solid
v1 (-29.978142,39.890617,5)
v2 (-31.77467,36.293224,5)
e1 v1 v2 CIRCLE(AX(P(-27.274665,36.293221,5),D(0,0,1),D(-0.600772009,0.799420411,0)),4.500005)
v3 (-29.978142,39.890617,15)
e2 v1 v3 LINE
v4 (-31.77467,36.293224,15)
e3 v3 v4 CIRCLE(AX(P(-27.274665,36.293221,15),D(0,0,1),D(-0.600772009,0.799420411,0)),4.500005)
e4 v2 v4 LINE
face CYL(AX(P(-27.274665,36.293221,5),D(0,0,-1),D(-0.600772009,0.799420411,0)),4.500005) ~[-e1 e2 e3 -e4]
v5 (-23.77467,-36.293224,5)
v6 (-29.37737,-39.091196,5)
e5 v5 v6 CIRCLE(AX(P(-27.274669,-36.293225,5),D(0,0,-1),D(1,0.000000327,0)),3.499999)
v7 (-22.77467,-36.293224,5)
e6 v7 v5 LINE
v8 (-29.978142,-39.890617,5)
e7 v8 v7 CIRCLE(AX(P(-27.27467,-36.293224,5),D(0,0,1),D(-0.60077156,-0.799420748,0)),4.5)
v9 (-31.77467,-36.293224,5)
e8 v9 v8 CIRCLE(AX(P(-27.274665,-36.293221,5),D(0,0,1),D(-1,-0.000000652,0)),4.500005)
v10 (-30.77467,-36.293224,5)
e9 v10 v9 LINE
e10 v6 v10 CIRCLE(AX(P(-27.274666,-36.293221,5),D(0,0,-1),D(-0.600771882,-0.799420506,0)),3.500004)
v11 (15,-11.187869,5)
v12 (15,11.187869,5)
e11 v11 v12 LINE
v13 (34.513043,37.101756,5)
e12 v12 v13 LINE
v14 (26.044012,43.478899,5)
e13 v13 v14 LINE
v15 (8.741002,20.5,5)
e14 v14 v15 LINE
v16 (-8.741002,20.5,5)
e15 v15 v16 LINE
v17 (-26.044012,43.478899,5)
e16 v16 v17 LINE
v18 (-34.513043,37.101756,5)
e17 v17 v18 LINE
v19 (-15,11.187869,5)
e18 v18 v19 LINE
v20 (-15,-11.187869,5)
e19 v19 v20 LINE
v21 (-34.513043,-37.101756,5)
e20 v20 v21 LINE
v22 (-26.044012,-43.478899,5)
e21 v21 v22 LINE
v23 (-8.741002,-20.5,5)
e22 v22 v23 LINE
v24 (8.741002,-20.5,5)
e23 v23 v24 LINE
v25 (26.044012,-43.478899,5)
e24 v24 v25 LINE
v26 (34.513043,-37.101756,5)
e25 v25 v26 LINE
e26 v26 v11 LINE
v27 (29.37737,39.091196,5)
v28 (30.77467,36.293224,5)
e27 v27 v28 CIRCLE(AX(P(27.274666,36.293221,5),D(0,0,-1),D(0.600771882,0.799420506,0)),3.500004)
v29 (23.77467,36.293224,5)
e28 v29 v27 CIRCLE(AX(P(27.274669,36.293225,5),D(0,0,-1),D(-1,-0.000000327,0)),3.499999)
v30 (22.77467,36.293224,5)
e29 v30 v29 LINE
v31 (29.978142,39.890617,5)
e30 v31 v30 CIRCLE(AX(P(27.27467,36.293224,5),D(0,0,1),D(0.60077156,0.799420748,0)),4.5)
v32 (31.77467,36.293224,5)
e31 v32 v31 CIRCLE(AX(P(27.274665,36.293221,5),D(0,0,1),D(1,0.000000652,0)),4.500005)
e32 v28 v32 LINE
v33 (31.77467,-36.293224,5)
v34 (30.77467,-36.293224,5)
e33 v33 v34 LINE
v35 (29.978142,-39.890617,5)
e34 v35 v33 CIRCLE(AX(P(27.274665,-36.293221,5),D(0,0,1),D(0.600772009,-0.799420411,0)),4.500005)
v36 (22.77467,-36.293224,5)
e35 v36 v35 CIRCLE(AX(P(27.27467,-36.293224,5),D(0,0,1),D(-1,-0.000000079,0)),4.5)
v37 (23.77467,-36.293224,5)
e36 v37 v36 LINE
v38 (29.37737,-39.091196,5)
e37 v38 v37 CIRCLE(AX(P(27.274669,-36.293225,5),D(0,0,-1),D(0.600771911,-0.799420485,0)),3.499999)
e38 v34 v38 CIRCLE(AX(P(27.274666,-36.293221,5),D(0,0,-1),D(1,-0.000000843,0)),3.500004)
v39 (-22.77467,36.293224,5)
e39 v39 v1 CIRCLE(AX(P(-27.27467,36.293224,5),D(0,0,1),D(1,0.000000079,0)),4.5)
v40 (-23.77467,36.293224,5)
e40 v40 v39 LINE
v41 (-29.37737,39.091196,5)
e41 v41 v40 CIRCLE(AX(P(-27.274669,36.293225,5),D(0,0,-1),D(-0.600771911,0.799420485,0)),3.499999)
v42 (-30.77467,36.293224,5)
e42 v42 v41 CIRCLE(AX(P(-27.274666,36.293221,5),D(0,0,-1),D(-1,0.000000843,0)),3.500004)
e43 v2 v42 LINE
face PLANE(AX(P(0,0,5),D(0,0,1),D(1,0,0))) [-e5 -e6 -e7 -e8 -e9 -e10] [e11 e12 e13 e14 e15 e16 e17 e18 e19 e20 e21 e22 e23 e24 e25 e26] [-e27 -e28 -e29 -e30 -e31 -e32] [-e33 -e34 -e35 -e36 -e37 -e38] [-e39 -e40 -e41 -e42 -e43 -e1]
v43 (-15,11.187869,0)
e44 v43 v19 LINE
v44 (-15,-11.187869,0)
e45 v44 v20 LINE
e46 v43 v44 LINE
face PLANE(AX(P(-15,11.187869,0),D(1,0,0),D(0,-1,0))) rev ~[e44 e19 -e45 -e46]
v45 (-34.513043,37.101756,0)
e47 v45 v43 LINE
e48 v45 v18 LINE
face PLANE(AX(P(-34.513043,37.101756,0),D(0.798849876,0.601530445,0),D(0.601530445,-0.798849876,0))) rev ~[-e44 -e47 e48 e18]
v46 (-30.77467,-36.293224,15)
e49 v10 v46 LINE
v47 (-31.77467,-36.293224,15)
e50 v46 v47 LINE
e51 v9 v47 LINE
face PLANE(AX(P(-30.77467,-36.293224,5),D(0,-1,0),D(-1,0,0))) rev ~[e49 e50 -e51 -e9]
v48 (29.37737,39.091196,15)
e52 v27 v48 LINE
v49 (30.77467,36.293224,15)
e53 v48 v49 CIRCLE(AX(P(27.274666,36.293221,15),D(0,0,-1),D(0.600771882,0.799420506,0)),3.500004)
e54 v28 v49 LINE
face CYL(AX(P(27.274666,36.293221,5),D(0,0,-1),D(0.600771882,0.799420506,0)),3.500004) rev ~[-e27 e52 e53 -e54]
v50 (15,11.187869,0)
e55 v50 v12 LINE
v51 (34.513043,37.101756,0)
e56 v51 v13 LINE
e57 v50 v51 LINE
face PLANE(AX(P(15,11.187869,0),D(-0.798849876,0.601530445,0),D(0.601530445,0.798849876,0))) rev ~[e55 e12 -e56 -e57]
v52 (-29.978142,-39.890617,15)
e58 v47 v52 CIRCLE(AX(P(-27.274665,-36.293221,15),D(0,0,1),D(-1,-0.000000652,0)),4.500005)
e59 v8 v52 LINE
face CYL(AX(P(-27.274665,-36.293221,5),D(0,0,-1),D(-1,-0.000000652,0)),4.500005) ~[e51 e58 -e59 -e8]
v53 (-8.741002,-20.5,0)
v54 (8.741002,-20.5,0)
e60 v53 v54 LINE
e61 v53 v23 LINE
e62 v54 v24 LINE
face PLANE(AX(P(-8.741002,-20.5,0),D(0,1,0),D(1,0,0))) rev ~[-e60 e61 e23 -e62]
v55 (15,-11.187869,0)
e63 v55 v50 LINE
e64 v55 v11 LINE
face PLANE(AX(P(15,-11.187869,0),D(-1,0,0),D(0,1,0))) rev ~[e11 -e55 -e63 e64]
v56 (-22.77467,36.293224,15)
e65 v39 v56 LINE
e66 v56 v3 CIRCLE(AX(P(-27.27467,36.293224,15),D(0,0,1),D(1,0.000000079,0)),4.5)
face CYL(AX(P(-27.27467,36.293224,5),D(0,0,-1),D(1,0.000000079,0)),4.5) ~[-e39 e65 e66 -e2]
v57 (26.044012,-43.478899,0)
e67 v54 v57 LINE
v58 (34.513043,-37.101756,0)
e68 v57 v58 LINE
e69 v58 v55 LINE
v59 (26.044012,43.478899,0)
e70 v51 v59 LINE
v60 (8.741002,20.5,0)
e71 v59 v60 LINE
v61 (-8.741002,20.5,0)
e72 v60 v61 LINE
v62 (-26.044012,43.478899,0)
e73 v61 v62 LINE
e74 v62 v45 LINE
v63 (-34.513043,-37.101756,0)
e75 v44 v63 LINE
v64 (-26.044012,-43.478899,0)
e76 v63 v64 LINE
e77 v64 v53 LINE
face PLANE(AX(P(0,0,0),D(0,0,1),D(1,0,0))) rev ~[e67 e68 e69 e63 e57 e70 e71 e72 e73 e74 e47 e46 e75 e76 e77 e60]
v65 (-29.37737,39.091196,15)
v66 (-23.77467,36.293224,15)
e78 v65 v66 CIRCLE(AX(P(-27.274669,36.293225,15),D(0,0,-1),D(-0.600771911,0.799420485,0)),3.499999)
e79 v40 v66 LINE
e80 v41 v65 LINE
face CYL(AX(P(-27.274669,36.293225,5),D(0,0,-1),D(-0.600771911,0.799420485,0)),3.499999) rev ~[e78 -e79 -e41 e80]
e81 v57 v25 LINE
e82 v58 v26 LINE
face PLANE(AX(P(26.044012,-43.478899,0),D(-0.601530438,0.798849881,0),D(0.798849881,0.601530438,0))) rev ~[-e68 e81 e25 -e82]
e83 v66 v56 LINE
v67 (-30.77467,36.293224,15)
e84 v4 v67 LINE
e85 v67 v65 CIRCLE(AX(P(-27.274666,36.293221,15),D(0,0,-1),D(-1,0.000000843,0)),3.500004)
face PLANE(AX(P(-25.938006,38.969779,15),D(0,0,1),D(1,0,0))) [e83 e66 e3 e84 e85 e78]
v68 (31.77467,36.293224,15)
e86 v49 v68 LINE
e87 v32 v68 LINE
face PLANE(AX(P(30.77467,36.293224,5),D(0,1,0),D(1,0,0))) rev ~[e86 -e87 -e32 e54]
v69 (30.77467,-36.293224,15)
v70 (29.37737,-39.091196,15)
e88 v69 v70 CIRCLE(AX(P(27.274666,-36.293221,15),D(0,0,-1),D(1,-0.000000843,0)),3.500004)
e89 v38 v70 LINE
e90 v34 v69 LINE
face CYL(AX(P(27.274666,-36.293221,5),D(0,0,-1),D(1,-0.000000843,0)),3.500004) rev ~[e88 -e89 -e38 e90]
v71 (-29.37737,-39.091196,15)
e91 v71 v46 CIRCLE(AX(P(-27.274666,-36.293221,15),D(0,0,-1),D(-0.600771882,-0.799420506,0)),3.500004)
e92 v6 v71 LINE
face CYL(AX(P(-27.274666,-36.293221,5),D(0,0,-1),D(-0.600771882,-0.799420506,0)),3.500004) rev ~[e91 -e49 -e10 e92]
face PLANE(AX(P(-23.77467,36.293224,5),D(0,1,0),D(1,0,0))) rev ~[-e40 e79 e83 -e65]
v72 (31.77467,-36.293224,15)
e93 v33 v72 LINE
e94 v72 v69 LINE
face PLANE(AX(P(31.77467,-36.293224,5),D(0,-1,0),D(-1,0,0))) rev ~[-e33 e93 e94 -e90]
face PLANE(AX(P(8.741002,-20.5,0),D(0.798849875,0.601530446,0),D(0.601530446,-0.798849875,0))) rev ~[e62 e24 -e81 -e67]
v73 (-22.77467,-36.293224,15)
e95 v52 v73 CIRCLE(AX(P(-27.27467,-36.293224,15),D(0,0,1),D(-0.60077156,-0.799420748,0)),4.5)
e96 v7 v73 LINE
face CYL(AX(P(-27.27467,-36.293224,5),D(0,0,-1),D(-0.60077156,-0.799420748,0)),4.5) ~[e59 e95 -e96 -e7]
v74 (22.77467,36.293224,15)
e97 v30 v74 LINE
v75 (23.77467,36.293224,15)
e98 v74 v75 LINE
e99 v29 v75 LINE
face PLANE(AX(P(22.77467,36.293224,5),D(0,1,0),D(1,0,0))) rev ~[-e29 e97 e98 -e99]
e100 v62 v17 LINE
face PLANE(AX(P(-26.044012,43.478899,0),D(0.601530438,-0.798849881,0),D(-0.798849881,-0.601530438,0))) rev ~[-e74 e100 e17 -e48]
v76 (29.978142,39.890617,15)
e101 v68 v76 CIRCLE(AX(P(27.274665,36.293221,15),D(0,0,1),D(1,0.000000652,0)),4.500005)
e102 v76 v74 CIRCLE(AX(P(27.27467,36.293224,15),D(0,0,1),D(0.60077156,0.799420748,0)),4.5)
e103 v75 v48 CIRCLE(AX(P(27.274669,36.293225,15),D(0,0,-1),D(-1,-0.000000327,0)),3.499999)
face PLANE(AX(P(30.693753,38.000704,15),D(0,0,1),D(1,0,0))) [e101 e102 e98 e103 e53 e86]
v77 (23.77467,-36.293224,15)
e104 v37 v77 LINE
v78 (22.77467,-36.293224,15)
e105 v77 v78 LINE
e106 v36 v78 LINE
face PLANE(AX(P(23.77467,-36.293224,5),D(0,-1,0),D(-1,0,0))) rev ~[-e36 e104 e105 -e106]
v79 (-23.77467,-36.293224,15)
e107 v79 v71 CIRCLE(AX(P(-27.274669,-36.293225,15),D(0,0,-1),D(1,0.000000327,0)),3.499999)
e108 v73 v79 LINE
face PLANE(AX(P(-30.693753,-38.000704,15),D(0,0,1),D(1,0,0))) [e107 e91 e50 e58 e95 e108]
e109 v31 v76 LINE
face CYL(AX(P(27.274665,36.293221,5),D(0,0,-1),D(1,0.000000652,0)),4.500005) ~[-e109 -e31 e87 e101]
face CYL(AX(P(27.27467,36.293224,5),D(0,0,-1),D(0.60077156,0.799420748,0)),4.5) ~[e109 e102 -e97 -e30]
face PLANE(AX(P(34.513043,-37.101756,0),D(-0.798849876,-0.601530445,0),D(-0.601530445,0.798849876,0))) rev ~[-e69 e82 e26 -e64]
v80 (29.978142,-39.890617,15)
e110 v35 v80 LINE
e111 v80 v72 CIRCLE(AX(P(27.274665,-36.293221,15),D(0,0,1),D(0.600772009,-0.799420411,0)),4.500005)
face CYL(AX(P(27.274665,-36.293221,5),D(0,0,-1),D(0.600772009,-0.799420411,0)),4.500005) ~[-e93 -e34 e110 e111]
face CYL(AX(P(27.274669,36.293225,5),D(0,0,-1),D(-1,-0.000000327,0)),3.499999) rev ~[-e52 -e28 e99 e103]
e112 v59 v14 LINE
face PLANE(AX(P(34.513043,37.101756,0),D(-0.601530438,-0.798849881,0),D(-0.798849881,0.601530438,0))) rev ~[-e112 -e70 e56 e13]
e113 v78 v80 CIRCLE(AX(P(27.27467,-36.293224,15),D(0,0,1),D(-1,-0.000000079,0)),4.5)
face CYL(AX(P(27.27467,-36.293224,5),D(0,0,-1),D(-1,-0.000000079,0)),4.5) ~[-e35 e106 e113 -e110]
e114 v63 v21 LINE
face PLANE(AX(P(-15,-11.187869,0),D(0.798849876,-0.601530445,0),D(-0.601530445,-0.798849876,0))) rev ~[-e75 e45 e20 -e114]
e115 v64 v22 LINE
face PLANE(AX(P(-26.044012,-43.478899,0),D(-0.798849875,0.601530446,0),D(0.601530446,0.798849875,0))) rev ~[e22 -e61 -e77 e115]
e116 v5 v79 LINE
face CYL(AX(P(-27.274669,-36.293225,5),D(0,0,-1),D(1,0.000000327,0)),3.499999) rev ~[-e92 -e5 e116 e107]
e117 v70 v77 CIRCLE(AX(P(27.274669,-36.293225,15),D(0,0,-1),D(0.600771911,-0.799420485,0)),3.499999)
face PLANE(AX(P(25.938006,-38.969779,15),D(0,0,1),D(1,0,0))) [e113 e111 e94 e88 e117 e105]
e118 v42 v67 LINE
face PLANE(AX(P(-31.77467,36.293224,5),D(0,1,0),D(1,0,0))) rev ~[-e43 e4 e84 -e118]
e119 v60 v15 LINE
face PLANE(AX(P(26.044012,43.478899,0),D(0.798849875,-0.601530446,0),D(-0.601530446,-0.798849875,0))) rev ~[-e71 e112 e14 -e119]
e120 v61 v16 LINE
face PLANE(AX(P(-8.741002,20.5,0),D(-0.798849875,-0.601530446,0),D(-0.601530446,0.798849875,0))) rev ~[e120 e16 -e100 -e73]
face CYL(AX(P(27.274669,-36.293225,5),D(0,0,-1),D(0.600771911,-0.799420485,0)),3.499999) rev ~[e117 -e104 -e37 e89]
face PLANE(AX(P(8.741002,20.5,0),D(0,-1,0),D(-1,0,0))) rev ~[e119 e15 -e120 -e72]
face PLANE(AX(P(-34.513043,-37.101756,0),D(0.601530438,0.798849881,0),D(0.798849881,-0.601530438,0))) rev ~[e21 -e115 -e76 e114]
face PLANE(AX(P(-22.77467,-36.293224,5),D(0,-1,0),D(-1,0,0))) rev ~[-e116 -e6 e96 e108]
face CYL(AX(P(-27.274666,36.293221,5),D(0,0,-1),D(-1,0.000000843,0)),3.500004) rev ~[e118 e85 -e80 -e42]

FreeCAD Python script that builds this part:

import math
import FreeCAD as App
import Part
import Sketcher
from FreeCAD import Vector
Q = App.Units.Quantity


def add_polygon(sketch, points):
    """Adds a closed chain of lines whose ends are joined by coincident constraints."""
    first, n = sketch.GeometryCount, len(points)
    for a, b in zip(points, points[1:] + points[:1]):
        sketch.addGeometry(Part.LineSegment(App.Vector(*a, 0), App.Vector(*b, 0)), False)
    for i in range(n):
        sketch.addConstraint(Sketcher.Constraint("Coincident", first + i, 2, first + (i + 1) % n, 1))

doc = App.newDocument("Part")
params = doc.addObject("Spreadsheet::Sheet", "Params")
for row, (alias, value) in enumerate([
    ("pad1_length", "5 mm"),
    ("sketch2_radius", "4.5 mm"),
    ("sketch2_radius2", "3.499999 mm"),
    ("pad2_length", "10 mm"),
], start=1):
    params.set(f"A{row}", alias)
    params.set(f"B{row}", "=" + value)
    params.setAlias(f"B{row}", alias)

body = doc.addObject("PartDesign::Body", "Body")

# Sketch on XY plane
sketch1 = body.newObject("Sketcher::SketchObject", "Sketch")
sketch1.AttachmentSupport = (doc.getObject("XY_Plane"), [""])
sketch1.MapMode = "FlatFace"
add_polygon(sketch1, [(9, 20), (-9, 20), (-26, 43), (-35, 37), (-15, 11), (-15, -11), (-35, -37), (-26, -43), (-9, -20), (9, -20), (26, -43), (35, -37), (15, -11), (15, 11), (35, 37), (26, 43)])  # lines 0-15
sketch1.addConstraint([
    Sketcher.Constraint("Horizontal", 0),
    Sketcher.Constraint("Vertical", 4),
    Sketcher.Constraint("Horizontal", 8),
    Sketcher.Constraint("Vertical", 12),
    Sketcher.Constraint("Symmetric", 0, 2, 8, 2, -1, 1),
    Sketcher.Constraint("Symmetric", 1, 2, 9, 2, -1, 1),
    Sketcher.Constraint("Symmetric", 2, 2, 10, 2, -1, 1),
    Sketcher.Constraint("Symmetric", 3, 2, 11, 2, -1, 1),
    Sketcher.Constraint("Symmetric", 5, 2, 13, 2, -1, 1),
    Sketcher.Constraint("Symmetric", 6, 2, 14, 2, -1, 1),
    Sketcher.Constraint("Symmetric", 6, 2, 9, 2, -2),
    Sketcher.Constraint("Symmetric", 5, 2, 10, 2, -2),
    Sketcher.Constraint("Perpendicular", 1, 2),
    Sketcher.Constraint("Perpendicular", 2, 3),
    Sketcher.Constraint("Perpendicular", 5, 6),
    Sketcher.Constraint("Perpendicular", 6, 7),
    Sketcher.Constraint("Parallel", 7, 13),
    Sketcher.Constraint("Perpendicular", 14, 15),
    Sketcher.Constraint("DistanceX", 3, 2, -1, 1, Q("15 mm")),
    Sketcher.Constraint("DistanceY", 7, 2, 0, 2, Q("41 mm")),
    Sketcher.Constraint("DistanceY", -1, 1, 1, 2, Q("43.478899 mm")),
    Sketcher.Constraint("Distance", 2, Q("10.60153 mm")),
    Sketcher.Constraint("DistanceX", 0, 2, 0, 1, Q("17.482004 mm")),
    Sketcher.Constraint("DistanceY", 4, 2, 4, 1, Q("22.375738 mm")),
])
pad1 = body.newObject("PartDesign::Pad", "Pad")
pad1.Profile = sketch1
pad1.setExpression("Length", "Params.pad1_length")

# Sketch on XY plane
sketch2 = body.newObject("Sketcher::SketchObject", "Sketch001")
sketch2.AttachmentSupport = (doc.getObject("XY_Plane"), [""])
sketch2.MapMode = "FlatFace"
sketch2.AttachmentOffset = App.Placement(Vector(0, 0, 5), App.Rotation())
sketch2.addGeometry([
    Part.LineSegment(Vector(-23.8, 36.3, 0), Vector(-22.8, 36.3, 0)),  # 0
    Part.ArcOfCircle(Part.Circle(Vector(-27.3, 36.3, 0), Vector(0, 0, 1), 4.5), math.radians(0), math.radians(127)),  # 1
    Part.ArcOfCircle(Part.Circle(Vector(-27.3, 36.3, 0), Vector(0, 0, 1), 4.5), math.radians(127), math.radians(180)),  # 2
    Part.LineSegment(Vector(-31.8, 36.3, 0), Vector(-30.8, 36.3, 0)),  # 3
    Part.ArcOfCircle(Part.Circle(Vector(-27.3, 36.3, 0), Vector(0, 0, 1), 3.5), math.radians(127), math.radians(180)),  # 4
    Part.ArcOfCircle(Part.Circle(Vector(-27.3, 36.3, 0), Vector(0, 0, 1), 3.5), math.radians(0), math.radians(127)),  # 5
    Part.ArcOfCircle(Part.Circle(Vector(27.3, 36.3, 0), Vector(0, 0, 1), 3.5), math.radians(0), math.radians(53)),  # 6
    Part.LineSegment(Vector(30.8, 36.3, 0), Vector(31.8, 36.3, 0)),  # 7
    Part.ArcOfCircle(Part.Circle(Vector(27.3, 36.3, 0), Vector(0, 0, 1), 4.5), math.radians(0), math.radians(53)),  # 8
    Part.ArcOfCircle(Part.Circle(Vector(27.3, 36.3, 0), Vector(0, 0, 1), 4.5), math.radians(53), math.radians(180)),  # 9
    Part.LineSegment(Vector(22.8, 36.3, 0), Vector(23.8, 36.3, 0)),  # 10
    Part.ArcOfCircle(Part.Circle(Vector(27.3, 36.3, 0), Vector(0, 0, 1), 3.5), math.radians(53), math.radians(180)),  # 11
    Part.ArcOfCircle(Part.Circle(Vector(27.3, -36.3, 0), Vector(0, 0, 1), 3.5), math.radians(180), math.radians(307)),  # 12
    Part.LineSegment(Vector(23.8, -36.3, 0), Vector(22.8, -36.3, 0)),  # 13
    Part.ArcOfCircle(Part.Circle(Vector(27.3, -36.3, 0), Vector(0, 0, 1), 4.5), math.radians(-180), math.radians(-53)),  # 14
    Part.ArcOfCircle(Part.Circle(Vector(27.3, -36.3, 0), Vector(0, 0, 1), 4.5), math.radians(-53), math.radians(0)),  # 15
    Part.LineSegment(Vector(31.8, -36.3, 0), Vector(30.8, -36.3, 0)),  # 16
    Part.ArcOfCircle(Part.Circle(Vector(27.3, -36.3, 0), Vector(0, 0, 1), 3.5), math.radians(-53), math.radians(0)),  # 17
    Part.ArcOfCircle(Part.Circle(Vector(-27.3, -36.3, 0), Vector(0, 0, 1), 3.5), math.radians(-180), math.radians(-127)),  # 18
    Part.LineSegment(Vector(-30.8, -36.3, 0), Vector(-31.8, -36.3, 0)),  # 19
    Part.ArcOfCircle(Part.Circle(Vector(-27.3, -36.3, 0), Vector(0, 0, 1), 4.5), math.radians(-180), math.radians(-127)),  # 20
    Part.ArcOfCircle(Part.Circle(Vector(-27.3, -36.3, 0), Vector(0, 0, 1), 4.5), math.radians(-127), math.radians(0)),  # 21
    Part.LineSegment(Vector(-22.8, -36.3, 0), Vector(-23.8, -36.3, 0)),  # 22
    Part.ArcOfCircle(Part.Circle(Vector(-27.3, -36.3, 0), Vector(0, 0, 1), 3.5), math.radians(-127), math.radians(0)),  # 23
], False)
sketch2.addConstraint([
    Sketcher.Constraint("Coincident", 0, 2, 1, 1),
    Sketcher.Constraint("Tangent", 1, 2, 2, 1),
    Sketcher.Constraint("Coincident", 2, 2, 3, 1),
    Sketcher.Constraint("Coincident", 3, 2, 4, 2),
    Sketcher.Constraint("Tangent", 4, 1, 5, 2),
    Sketcher.Constraint("Coincident", 5, 1, 0, 1),
    Sketcher.Constraint("Coincident", 6, 1, 7, 1),
    Sketcher.Constraint("Coincident", 7, 2, 8, 1),
    Sketcher.Constraint("Tangent", 8, 2, 9, 1),
    Sketcher.Constraint("Coincident", 9, 2, 10, 1),
    Sketcher.Constraint("Coincident", 10, 2, 11, 2),
    Sketcher.Constraint("Tangent", 11, 1, 6, 2),
    Sketcher.Constraint("Coincident", 12, 1, 13, 1),
    Sketcher.Constraint("Coincident", 13, 2, 14, 1),
    Sketcher.Constraint("Tangent", 14, 2, 15, 1),
    Sketcher.Constraint("Coincident", 15, 2, 16, 1),
    Sketcher.Constraint("Coincident", 16, 2, 17, 2),
    Sketcher.Constraint("Tangent", 17, 1, 12, 2),
    Sketcher.Constraint("Coincident", 18, 1, 19, 1),
    Sketcher.Constraint("Coincident", 19, 2, 20, 1),
    Sketcher.Constraint("Tangent", 20, 2, 21, 1),
    Sketcher.Constraint("Coincident", 21, 2, 22, 1),
    Sketcher.Constraint("Coincident", 22, 2, 23, 2),
    Sketcher.Constraint("Tangent", 23, 1, 18, 2),
    Sketcher.Constraint("Horizontal", 0),
    Sketcher.Constraint("Horizontal", 3),
    Sketcher.Constraint("Horizontal", 7),
    Sketcher.Constraint("Horizontal", 10),
    Sketcher.Constraint("Horizontal", 13),
    Sketcher.Constraint("Horizontal", 16),
    Sketcher.Constraint("Horizontal", 19),
    Sketcher.Constraint("Horizontal", 22),
    Sketcher.Constraint("Coincident", 4, 3, 1, 3),
    Sketcher.Constraint("Coincident", 8, 3, 6, 3),
    Sketcher.Constraint("Coincident", 14, 3, 12, 3),
    Sketcher.Constraint("Coincident", 20, 3, 18, 3),
    Sketcher.Constraint("Equal", 4, 6),
    Sketcher.Constraint("Equal", 2, 8),
    Sketcher.Constraint("Equal", 1, 9),
    Sketcher.Constraint("Equal", 5, 11),
    Sketcher.Constraint("Equal", 11, 12),
    Sketcher.Constraint("Equal", 9, 14),
    Sketcher.Constraint("Equal", 8, 15),
    Sketcher.Constraint("Equal", 6, 17),
    Sketcher.Constraint("Equal", 17, 18),
    Sketcher.Constraint("Equal", 15, 20),
    Sketcher.Constraint("Equal", 14, 21),
    Sketcher.Constraint("Equal", 12, 23),
    Sketcher.Constraint("Symmetric", 1, 3, 12, 3, -1, 1),
    Sketcher.Constraint("Symmetric", 6, 3, 18, 3, -1, 1),
    Sketcher.Constraint("Symmetric", 5, 1, 12, 1, -1, 1),
    Sketcher.Constraint("Symmetric", 1, 3, 6, 3, -2),
    Sketcher.Constraint("Symmetric", 2, 2, 7, 2, -2),
    Sketcher.Constraint("Horizontal", 11, 3, 0, 2),
    Sketcher.Constraint("Horizontal", 0, 2, 2, 2),
    Sketcher.Constraint("Horizontal", 1, 2, 8, 2),
    Sketcher.Constraint("Horizontal", 7, 2, 9, 2),
    Sketcher.Constraint("Horizontal", 4, 1, 11, 1),
    Sketcher.Constraint("Horizontal", 13, 2, 15, 2),
    Sketcher.Constraint("Horizontal", 16, 2, 18, 1),
    Sketcher.Constraint("Horizontal", 14, 2, 20, 2),
    Sketcher.Constraint("Horizontal", 19, 2, 21, 2),
    Sketcher.Constraint("Horizontal", 17, 1, 23, 1),
    Sketcher.Constraint("Vertical", 8, 2, 14, 2),
    Sketcher.Constraint("Vertical", 11, 1, 17, 1),
    Sketcher.Constraint("Radius", 1, Q("4.5 mm")),
    Sketcher.Constraint("Radius", 5, Q("3.499999 mm")),
    Sketcher.Constraint("DistanceX", 3, 2, 4, 1, Q("1.3973 mm")),
    Sketcher.Constraint("DistanceX", 1, 3, -1, 1, Q("27.27467 mm")),
    Sketcher.Constraint("DistanceY", -1, 1, 2, 3, Q("36.293221 mm")),
    Sketcher.Constraint("DistanceY", 5, 3, 1, 2, Q("3.597392 mm")),
])
sketch2.setExpression("Constraints[65]", "Params.sketch2_radius")
sketch2.setExpression("Constraints[66]", "Params.sketch2_radius2")
pad2 = body.newObject("PartDesign::Pad", "Pad001")
pad2.Profile = sketch2
pad2.setExpression("Length", "Params.pad2_length")

doc.recompute()
